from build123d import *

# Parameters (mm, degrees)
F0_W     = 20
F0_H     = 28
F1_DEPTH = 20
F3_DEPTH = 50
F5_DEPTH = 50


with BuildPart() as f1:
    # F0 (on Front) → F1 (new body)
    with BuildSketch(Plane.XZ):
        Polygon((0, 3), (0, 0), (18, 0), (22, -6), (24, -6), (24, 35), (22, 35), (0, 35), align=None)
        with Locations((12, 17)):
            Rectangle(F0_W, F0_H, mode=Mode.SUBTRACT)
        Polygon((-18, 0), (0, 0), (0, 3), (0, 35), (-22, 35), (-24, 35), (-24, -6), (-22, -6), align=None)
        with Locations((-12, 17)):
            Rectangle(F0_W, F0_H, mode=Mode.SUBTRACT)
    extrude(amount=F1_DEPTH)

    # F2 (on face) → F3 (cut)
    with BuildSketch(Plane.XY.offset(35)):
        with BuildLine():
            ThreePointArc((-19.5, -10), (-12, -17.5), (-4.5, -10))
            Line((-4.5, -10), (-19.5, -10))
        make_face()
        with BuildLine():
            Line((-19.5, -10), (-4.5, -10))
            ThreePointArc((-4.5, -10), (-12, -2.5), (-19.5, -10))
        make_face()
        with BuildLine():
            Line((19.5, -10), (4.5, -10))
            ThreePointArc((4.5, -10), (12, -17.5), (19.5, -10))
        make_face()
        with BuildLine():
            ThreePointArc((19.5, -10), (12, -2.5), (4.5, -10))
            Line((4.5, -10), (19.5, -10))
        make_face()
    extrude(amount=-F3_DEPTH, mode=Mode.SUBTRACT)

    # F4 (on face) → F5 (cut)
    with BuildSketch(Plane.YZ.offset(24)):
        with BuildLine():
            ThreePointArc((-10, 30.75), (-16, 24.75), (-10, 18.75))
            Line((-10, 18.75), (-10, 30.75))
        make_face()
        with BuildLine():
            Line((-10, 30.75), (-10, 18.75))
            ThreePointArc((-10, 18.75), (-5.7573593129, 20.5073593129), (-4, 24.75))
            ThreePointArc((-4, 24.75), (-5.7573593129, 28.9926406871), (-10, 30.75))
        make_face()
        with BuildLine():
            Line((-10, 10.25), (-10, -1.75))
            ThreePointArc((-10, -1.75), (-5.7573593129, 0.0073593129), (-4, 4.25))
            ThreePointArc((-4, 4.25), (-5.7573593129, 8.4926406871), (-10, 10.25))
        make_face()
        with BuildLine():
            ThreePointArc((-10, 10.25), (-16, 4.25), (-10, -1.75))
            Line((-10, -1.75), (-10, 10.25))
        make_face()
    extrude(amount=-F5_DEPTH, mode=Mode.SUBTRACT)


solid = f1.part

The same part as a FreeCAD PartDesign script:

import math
import FreeCAD as App
import Part
import Sketcher
Q = App.Units.Quantity


def add_polygon(sketch, points):
    """Adds a closed chain of lines whose ends are joined by coincident constraints."""
    first, n = sketch.GeometryCount, len(points)
    for a, b in zip(points, points[1:] + points[:1]):
        sketch.addGeometry(Part.LineSegment(App.Vector(*a, 0), App.Vector(*b, 0)), False)
    for i in range(n):
        sketch.addConstraint(Sketcher.Constraint("Coincident", first + i, 2, first + (i + 1) % n, 1))

doc = App.newDocument("Part")
body = doc.addObject("PartDesign::Body", "Body")

# Sketch on XZ plane
sketch1 = body.newObject("Sketcher::SketchObject", "Sketch")
sketch1.AttachmentSupport = (doc.getObject("XZ_Plane"), [""])
sketch1.MapMode = "FlatFace"
add_polygon(sketch1, [(18, 0), (22, -6), (24, -6), (24, 35), (-24, 35), (-24, -6), (-22, -6), (-18, 0)])  # lines 0-7
add_polygon(sketch1, [(-2, 3), (-22, 3), (-22, 31), (-2, 31)])  # lines 8-11
add_polygon(sketch1, [(22, 3), (2, 3), (2, 31), (22, 31)])  # lines 12-15
sketch1.addConstraint([
    Sketcher.Constraint("Horizontal", 1),
    Sketcher.Constraint("Vertical", 2),
    Sketcher.Constraint("Horizontal", 3),
    Sketcher.Constraint("Vertical", 4),
    Sketcher.Constraint("Horizontal", 5),
    Sketcher.Constraint("Horizontal", 7),
    Sketcher.Constraint("Horizontal", 8),
    Sketcher.Constraint("Vertical", 9),
    Sketcher.Constraint("Horizontal", 10),
    Sketcher.Constraint("Vertical", 11),
    Sketcher.Constraint("Horizontal", 12),
    Sketcher.Constraint("Vertical", 13),
    Sketcher.Constraint("Horizontal", 14),
    Sketcher.Constraint("Vertical", 15),
    Sketcher.Constraint("Symmetric", 6, 2, 7, 2, -1, 1),
    Sketcher.Constraint("Symmetric", 1, 2, 4, 2, -2),
    Sketcher.Constraint("Symmetric", 11, 2, 12, 2, -2),
    Sketcher.Constraint("Symmetric", 9, 2, 14, 2, -2),
    Sketcher.Constraint("Vertical", 5, 2, 8, 2),
    Sketcher.Constraint("Vertical", 0, 2, 14, 2),
    Sketcher.Constraint("DistanceX", 1, 1, 1, 2, Q("2 mm")),
    Sketcher.Constraint("DistanceX", 3, 2, 3, 1, Q("48 mm")),
    Sketcher.Constraint("DistanceX", 7, 1, 7, 2, Q("36 mm")),
    Sketcher.Constraint("DistanceX", 8, 2, 8, 1, Q("20 mm")),
    Sketcher.Constraint("DistanceY", 2, 1, 2, 2, Q("41 mm")),
    Sketcher.Constraint("DistanceY", 9, 1, 9, 2, Q("28 mm")),
    Sketcher.Constraint("DistanceY", 0, 2, -1, 1, Q("6 mm")),
    Sketcher.Constraint("DistanceY", -1, 1, 8, 2, Q("3 mm")),
])
pad1 = body.newObject("PartDesign::Pad", "Pad")
pad1.Profile = sketch1
pad1.Length = 20

# Sketch on XY plane
sketch2 = body.newObject("Sketcher::SketchObject", "Sketch001")
sketch2.AttachmentSupport = (doc.getObject("XY_Plane"), [""])
sketch2.MapMode = "FlatFace"
sketch2.AttachmentOffset = App.Placement(App.Vector(0, 0, 35), App.Rotation())
sketch2.addGeometry([
    Part.Circle(App.Vector(-12, -10, 0), App.Vector(0, 0, 1), 8),
    Part.Circle(App.Vector(12, -10, 0), App.Vector(0, 0, 1), 8),
], False)
sketch2.addConstraint([
    Sketcher.Constraint("Equal", 0, 1),
    Sketcher.Constraint("Symmetric", 0, 3, 1, 3, -2),
    Sketcher.Constraint("Diameter", 0, Q("15 mm")),
    Sketcher.Constraint("DistanceX", 0, 3, -1, 1, Q("12 mm")),
    Sketcher.Constraint("DistanceY", 0, 3, -1, 1, Q("10 mm")),
])
pocket1 = body.newObject("PartDesign::Pocket", "Pocket")
pocket1.Profile = sketch2
pocket1.Length = 50

# Sketch on YZ plane
sketch3 = body.newObject("Sketcher::SketchObject", "Sketch002")
sketch3.AttachmentSupport = (doc.getObject("YZ_Plane"), [""])
sketch3.MapMode = "FlatFace"
sketch3.AttachmentOffset = App.Placement(App.Vector(0, 0, 24), App.Rotation())
sketch3.addGeometry([
    Part.ArcOfCircle(Part.Circle(App.Vector(-10, 25, 0), App.Vector(0, 0, 1), 6), math.radians(90), math.radians(270)),  # 0
    Part.ArcOfCircle(Part.Circle(App.Vector(-10, 25, 0), App.Vector(0, 0, 1), 6), math.radians(-90), math.radians(0)),  # 1
    Part.ArcOfCircle(Part.Circle(App.Vector(-10, 25, 0), App.Vector(0, 0, 1), 6), math.radians(0), math.radians(90)),  # 2
    Part.ArcOfCircle(Part.Circle(App.Vector(-10, 4, 0), App.Vector(0, 0, 1), 6), math.radians(-90), math.radians(0)),  # 3
    Part.ArcOfCircle(Part.Circle(App.Vector(-10, 4, 0), App.Vector(0, 0, 1), 6), math.radians(0), math.radians(90)),  # 4
    Part.ArcOfCircle(Part.Circle(App.Vector(-10, 4, 0), App.Vector(0, 0, 1), 6), math.radians(90), math.radians(270)),  # 5
], False)
sketch3.addConstraint([
    Sketcher.Constraint("Tangent", 0, 2, 1, 1),
    Sketcher.Constraint("Tangent", 1, 2, 2, 1),
    Sketcher.Constraint("Tangent", 2, 2, 0, 1),
    Sketcher.Constraint("Tangent", 3, 2, 4, 1),
    Sketcher.Constraint("Tangent", 4, 2, 5, 1),
    Sketcher.Constraint("Tangent", 5, 2, 3, 1),
    Sketcher.Constraint("Equal", 2, 3),
    Sketcher.Constraint("Horizontal", 2, 3, 1, 2),
    Sketcher.Constraint("Horizontal", 5, 3, 3, 2),
    Sketcher.Constraint("Vertical", 2, 3, 3, 3),
    Sketcher.Constraint("Vertical", 5, 3, 0, 2),
    Sketcher.Constraint("Vertical", 0, 2, 2, 2),
    Sketcher.Constraint("Vertical", 2, 2, 4, 2),
    Sketcher.Constraint("Vertical", 4, 2, 5, 2),
    Sketcher.Constraint("Radius", 0, Q("6 mm")),
    Sketcher.Constraint("DistanceX", 0, 3, -1, 1, Q("10 mm")),
    Sketcher.Constraint("DistanceY", 3, 3, 0, 3, Q("20.5 mm")),
    Sketcher.Constraint("DistanceY", -1, 1, 0, 3, Q("24.75 mm")),
])
pocket2 = body.newObject("PartDesign::Pocket", "Pocket001")
pocket2.Profile = sketch3
pocket2.Length = 50

doc.recompute()
